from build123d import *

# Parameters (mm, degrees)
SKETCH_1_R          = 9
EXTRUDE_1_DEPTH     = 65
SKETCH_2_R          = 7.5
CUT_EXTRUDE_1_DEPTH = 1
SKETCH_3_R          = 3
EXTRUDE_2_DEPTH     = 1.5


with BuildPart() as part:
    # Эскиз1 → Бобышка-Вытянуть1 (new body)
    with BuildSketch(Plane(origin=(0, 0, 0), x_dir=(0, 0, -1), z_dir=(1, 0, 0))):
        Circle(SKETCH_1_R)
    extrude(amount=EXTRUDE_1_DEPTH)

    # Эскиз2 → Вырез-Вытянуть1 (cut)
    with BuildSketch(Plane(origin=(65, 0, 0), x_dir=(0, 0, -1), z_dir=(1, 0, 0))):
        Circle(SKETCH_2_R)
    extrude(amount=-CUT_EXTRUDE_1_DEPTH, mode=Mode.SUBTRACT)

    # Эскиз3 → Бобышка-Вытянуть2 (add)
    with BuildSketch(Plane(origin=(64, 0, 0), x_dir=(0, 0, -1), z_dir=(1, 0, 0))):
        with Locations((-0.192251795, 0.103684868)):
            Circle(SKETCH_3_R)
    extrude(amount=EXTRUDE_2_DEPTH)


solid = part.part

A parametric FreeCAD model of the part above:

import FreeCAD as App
import Part
import Sketcher

doc = App.newDocument("Part")
params = doc.addObject("Spreadsheet::Sheet", "Params")
for row, (alias, value) in enumerate([
    ("sketch1_diameter", "18 mm"),
    ("pad1_length", "65 mm"),
    ("sketch2_diameter", "15 mm"),
    ("pocket1_length", "1 mm"),
    ("sketch3_diameter", "6 mm"),
    ("pad2_length", "1.5 mm"),
], start=1):
    params.set(f"A{row}", alias)
    params.set(f"B{row}", "=" + value)
    params.setAlias(f"B{row}", alias)

body = doc.addObject("PartDesign::Body", "Body")

# Sketch on YZ plane
sketch1 = body.newObject("Sketcher::SketchObject", "Sketch")
sketch1.AttachmentSupport = (doc.getObject("YZ_Plane"), [""])
sketch1.MapMode = "FlatFace"
sketch1.addGeometry(Part.Circle(App.Vector(0, 0, 0), App.Vector(0, 0, 1), 9), False)
sketch1.addConstraint([
    Sketcher.Constraint("Coincident", 0, 3, -1, 1),
    Sketcher.Constraint("Diameter", 0, 18.0),
])
sketch1.setExpression("Constraints[1]", "Params.sketch1_diameter")
pad1 = body.newObject("PartDesign::Pad", "Pad")
pad1.Profile = sketch1
pad1.setExpression("Length", "Params.pad1_length")

# Sketch on YZ plane
sketch2 = body.newObject("Sketcher::SketchObject", "Sketch001")
sketch2.AttachmentSupport = (doc.getObject("YZ_Plane"), [""])
sketch2.MapMode = "FlatFace"
sketch2.AttachmentOffset = App.Placement(App.Vector(0, 0, 65), App.Rotation())
sketch2.addGeometry(Part.Circle(App.Vector(0, 0, 0), App.Vector(0, 0, 1), 8), False)
sketch2.addConstraint([
    Sketcher.Constraint("Coincident", 0, 3, -1, 1),
    Sketcher.Constraint("Diameter", 0, 15.0),
])
sketch2.setExpression("Constraints[1]", "Params.sketch2_diameter")
pocket1 = body.newObject("PartDesign::Pocket", "Pocket")
pocket1.Profile = sketch2
pocket1.setExpression("Length", "Params.pocket1_length")

# Sketch on YZ plane
sketch3 = body.newObject("Sketcher::SketchObject", "Sketch002")
sketch3.AttachmentSupport = (doc.getObject("YZ_Plane"), [""])
sketch3.MapMode = "FlatFace"
sketch3.AttachmentOffset = App.Placement(App.Vector(0, 0, 64), App.Rotation())
sketch3.addGeometry(Part.Circle(App.Vector(0.1, 0.2, 0), App.Vector(0, 0, 1), 3), False)
sketch3.addConstraint([
    Sketcher.Constraint("Diameter", 0, 6.0),
    Sketcher.Constraint("DistanceY", -1, 1, 0, 3, 0.192252),
    Sketcher.Constraint("DistanceX", -1, 1, 0, 3, 0.103685),
])
sketch3.setExpression("Constraints[0]", "Params.sketch3_diameter")
pad2 = body.newObject("PartDesign::Pad", "Pad001")
pad2.Profile = sketch3
pad2.setExpression("Length", "Params.pad2_length")

doc.recompute()
